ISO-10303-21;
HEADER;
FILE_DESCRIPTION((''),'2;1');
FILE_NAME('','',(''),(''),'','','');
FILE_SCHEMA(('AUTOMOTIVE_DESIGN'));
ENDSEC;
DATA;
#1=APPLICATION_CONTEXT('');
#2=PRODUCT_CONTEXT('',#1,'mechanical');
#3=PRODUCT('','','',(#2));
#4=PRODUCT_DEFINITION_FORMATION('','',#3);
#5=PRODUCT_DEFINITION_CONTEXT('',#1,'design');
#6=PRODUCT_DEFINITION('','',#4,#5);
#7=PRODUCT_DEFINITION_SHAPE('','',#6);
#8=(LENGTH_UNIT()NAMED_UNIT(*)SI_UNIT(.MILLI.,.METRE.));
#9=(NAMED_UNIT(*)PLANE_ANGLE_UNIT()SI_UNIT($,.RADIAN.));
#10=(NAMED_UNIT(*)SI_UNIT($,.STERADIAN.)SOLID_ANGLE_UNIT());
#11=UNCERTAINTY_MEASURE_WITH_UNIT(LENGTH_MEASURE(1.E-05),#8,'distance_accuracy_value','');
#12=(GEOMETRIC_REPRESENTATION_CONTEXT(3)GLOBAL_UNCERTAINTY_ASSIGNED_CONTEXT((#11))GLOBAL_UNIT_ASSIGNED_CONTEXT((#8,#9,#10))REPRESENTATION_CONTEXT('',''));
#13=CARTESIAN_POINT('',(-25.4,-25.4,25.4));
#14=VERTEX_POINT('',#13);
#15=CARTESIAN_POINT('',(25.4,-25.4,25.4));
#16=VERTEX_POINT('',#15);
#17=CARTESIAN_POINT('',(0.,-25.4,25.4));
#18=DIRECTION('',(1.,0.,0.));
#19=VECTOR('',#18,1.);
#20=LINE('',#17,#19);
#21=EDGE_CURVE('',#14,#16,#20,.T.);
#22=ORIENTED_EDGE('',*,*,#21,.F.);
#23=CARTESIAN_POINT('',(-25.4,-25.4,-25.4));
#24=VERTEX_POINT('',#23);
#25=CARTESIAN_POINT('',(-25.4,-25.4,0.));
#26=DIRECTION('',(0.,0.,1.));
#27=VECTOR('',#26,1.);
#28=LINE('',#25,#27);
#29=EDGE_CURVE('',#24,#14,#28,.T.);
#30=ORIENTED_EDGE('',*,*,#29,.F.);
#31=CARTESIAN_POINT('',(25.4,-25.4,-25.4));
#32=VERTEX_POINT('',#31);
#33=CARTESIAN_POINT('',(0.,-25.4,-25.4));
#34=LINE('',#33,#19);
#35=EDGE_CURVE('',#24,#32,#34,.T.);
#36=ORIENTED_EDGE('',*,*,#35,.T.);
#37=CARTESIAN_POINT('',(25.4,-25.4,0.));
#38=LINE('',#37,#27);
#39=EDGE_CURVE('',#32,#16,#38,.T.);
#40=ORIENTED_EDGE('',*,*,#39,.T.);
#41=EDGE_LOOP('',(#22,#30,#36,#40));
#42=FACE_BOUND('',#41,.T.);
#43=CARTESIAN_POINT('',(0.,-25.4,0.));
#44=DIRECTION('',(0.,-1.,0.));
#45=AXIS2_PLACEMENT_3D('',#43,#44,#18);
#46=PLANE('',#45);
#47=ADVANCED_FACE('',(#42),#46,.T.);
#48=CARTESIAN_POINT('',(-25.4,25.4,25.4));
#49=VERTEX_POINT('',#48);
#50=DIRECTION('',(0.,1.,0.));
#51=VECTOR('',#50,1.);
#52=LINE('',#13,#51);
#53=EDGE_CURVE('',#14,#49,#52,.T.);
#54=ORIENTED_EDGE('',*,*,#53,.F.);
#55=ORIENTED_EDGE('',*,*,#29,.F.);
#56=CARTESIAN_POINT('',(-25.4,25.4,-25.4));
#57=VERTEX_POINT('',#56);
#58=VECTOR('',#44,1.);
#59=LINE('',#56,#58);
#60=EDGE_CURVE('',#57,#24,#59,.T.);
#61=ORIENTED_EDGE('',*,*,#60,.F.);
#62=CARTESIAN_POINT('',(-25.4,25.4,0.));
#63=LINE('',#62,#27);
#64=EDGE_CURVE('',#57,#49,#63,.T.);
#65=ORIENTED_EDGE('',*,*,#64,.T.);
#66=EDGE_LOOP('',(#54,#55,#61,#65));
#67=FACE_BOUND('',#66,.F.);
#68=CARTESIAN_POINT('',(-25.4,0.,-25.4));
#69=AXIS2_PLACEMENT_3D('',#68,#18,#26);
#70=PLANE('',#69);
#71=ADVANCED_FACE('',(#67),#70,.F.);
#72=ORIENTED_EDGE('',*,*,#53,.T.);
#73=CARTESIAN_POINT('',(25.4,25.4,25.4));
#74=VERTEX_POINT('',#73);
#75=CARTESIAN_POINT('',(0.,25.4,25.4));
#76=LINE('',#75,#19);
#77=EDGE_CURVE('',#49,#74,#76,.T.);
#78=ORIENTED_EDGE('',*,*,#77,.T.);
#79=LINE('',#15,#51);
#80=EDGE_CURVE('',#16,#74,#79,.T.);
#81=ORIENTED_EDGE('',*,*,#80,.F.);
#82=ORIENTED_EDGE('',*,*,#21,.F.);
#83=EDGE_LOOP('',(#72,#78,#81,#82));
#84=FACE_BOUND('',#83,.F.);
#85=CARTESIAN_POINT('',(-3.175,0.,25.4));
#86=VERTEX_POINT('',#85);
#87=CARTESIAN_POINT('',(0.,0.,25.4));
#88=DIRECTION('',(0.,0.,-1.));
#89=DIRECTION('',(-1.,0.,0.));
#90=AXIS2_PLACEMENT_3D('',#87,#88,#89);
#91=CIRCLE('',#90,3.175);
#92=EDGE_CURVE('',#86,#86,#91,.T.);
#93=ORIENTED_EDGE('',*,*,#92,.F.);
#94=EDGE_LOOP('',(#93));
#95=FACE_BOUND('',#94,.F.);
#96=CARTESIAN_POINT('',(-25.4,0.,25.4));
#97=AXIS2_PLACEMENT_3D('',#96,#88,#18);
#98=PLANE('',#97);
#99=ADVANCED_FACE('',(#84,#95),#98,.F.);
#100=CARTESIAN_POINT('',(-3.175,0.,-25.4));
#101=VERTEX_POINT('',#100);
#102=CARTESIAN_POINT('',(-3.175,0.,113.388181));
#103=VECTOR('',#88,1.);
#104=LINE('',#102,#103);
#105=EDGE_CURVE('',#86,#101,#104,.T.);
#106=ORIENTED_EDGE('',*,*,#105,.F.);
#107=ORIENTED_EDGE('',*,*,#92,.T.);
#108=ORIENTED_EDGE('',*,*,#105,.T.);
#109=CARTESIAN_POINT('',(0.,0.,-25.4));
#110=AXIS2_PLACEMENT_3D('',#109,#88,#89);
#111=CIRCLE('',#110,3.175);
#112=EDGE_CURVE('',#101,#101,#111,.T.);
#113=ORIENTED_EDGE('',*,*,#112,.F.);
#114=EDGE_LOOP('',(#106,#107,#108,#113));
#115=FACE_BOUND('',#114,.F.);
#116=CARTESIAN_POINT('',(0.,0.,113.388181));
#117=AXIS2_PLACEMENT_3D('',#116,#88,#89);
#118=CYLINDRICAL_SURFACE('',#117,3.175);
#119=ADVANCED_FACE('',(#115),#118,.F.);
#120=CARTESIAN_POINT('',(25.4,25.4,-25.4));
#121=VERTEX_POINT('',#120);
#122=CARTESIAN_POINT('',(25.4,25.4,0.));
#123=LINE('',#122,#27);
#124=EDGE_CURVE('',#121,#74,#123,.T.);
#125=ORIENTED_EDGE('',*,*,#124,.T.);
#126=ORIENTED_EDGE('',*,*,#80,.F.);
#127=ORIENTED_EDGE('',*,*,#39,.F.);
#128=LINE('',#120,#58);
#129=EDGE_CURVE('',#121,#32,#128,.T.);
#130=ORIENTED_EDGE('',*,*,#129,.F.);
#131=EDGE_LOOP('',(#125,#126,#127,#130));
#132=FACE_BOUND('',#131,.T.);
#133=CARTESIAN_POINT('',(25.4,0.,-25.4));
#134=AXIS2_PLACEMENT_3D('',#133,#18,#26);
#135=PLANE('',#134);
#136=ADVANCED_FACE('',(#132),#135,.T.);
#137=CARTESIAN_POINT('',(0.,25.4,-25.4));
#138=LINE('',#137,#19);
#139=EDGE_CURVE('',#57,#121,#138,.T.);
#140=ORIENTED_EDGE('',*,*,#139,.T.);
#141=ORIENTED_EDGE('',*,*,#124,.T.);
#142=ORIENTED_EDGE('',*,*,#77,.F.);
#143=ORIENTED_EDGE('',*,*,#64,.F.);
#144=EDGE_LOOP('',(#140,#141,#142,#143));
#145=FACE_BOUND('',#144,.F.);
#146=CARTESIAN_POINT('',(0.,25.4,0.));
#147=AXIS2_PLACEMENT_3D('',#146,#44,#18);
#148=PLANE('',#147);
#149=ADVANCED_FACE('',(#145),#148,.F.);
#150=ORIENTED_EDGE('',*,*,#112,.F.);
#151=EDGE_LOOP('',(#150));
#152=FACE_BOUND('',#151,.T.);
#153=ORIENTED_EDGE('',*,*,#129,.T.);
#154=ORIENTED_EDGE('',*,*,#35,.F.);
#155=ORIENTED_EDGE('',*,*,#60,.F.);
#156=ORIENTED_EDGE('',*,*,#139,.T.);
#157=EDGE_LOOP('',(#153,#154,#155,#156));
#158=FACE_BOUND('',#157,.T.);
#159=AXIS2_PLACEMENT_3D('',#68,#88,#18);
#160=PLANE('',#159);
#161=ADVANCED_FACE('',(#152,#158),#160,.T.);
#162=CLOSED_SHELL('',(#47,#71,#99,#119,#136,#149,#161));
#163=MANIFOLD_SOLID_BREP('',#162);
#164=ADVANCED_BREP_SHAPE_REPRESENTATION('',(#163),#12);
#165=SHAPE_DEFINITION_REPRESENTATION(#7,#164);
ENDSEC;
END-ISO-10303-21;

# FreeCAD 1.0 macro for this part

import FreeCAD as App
import Part
import Sketcher
Q = App.Units.Quantity

doc = App.newDocument("Part")
body = doc.addObject("PartDesign::Body", "Body")

# Sketch on XZ plane
sketch1 = body.newObject("Sketcher::SketchObject", "Sketch")
sketch1.AttachmentSupport = (doc.getObject("XZ_Plane"), [""])
sketch1.MapMode = "FlatFace"
sketch1.addGeometry([
    Part.LineSegment(App.Vector(-25, 25, 0), App.Vector(-25, -25, 0)),
    Part.LineSegment(App.Vector(-25, -25, 0), App.Vector(25, -25, 0)),
    Part.LineSegment(App.Vector(25, -25, 0), App.Vector(25, 25, 0)),
    Part.LineSegment(App.Vector(25, 25, 0), App.Vector(-25, 25, 0)),
], False)
sketch1.addConstraint([
    Sketcher.Constraint("Coincident", 0, 2, 1, 1),
    Sketcher.Constraint("Coincident", 1, 2, 2, 1),
    Sketcher.Constraint("Coincident", 2, 2, 3, 1),
    Sketcher.Constraint("Coincident", 3, 2, 0, 1),
    Sketcher.Constraint("Vertical", 0),
    Sketcher.Constraint("Horizontal", 1),
    Sketcher.Constraint("Vertical", 2),
    Sketcher.Constraint("Horizontal", 3),
    Sketcher.Constraint("Symmetric", 0, 2, 2, 2, -1, 1),
    Sketcher.Constraint("Equal", 3, 0),
    Sketcher.Constraint("DistanceX", 1, 1, 1, 2, Q("2 in")),
])
pad1 = body.newObject("PartDesign::Pad", "Pad")
pad1.Profile = sketch1
pad1.Length = Q("2 in")
pad1.Midplane = True

# Sketch on XY plane
sketch2 = body.newObject("Sketcher::SketchObject", "Sketch001")
sketch2.AttachmentSupport = (doc.getObject("XY_Plane"), [""])
sketch2.MapMode = "FlatFace"
sketch2.AttachmentOffset = App.Placement(App.Vector(0, 0, 1 * 25.4), App.Rotation())
sketch2.addGeometry(Part.Circle(App.Vector(0, 0, 0), App.Vector(0, 0, 1), 3.2), False)
sketch2.addConstraint([
    Sketcher.Constraint("Coincident", 0, 3, -1, 1),
    Sketcher.Constraint("Diameter", 0, Q("0.25 in")),
])
doc.recompute()
hole = body.newObject("PartDesign::Hole", "Hole")
hole.Profile = sketch2
hole.ThreadType = "None"
hole.Diameter = Q("0.25 in")
hole.DepthType = "ThroughAll"

doc.recompute()
